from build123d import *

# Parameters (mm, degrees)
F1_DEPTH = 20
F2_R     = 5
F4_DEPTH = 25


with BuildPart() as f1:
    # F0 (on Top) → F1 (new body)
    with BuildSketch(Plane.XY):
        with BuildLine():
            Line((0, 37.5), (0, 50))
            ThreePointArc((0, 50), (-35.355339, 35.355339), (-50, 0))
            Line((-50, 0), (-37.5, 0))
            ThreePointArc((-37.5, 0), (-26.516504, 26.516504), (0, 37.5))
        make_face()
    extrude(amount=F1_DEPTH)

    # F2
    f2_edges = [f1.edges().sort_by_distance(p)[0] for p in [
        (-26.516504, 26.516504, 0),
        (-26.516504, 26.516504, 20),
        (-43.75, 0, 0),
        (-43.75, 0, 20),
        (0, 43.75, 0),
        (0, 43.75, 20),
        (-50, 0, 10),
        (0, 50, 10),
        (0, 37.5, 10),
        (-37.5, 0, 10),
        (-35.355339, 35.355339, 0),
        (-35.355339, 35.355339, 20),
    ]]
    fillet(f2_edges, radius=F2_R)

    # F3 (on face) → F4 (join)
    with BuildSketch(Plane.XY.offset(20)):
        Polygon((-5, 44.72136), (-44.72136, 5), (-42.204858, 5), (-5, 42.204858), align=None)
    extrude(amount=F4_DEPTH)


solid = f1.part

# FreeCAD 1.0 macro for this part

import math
import FreeCAD as App
import Part
import Sketcher
from FreeCAD import Vector

doc = App.newDocument("Part")
params = doc.addObject("Spreadsheet::Sheet", "Params")
for row, (alias, value) in enumerate([
    ("sketch1_radius", "50 mm"),
    ("sketch1_radius2", "37.500001 mm"),
    ("pad1_length", "20 mm"),
    ("fillet_radius", "5 mm"),
    ("pad2_length", "25 mm"),
], start=1):
    params.set(f"A{row}", alias)
    params.set(f"B{row}", "=" + value)
    params.setAlias(f"B{row}", alias)

body = doc.addObject("PartDesign::Body", "Body")

# Sketch on XY plane
sketch1 = body.newObject("Sketcher::SketchObject", "Sketch")
sketch1.AttachmentSupport = (doc.getObject("XY_Plane"), [""])
sketch1.MapMode = "FlatFace"
sketch1.addGeometry([
    Part.LineSegment(Vector(0, 37.5, 0), Vector(0, 50, 0)),
    Part.ArcOfCircle(Part.Circle(Vector(0, 0, 0), Vector(0, 0, 1), 50), math.radians(90), math.radians(180)),
    Part.LineSegment(Vector(-50, 0, 0), Vector(-37.5, 0, 0)),
    Part.ArcOfCircle(Part.Circle(Vector(0.000001, -0.000001, 0), Vector(0, 0, 1), 37.500001), math.radians(90.000002), math.radians(179.999998)),
], False)
sketch1.addConstraint([
    Sketcher.Constraint("Coincident", 0, 2, 1, 1),
    Sketcher.Constraint("Coincident", 1, 2, 2, 1),
    Sketcher.Constraint("Coincident", 2, 2, 3, 2),
    Sketcher.Constraint("Coincident", 3, 1, 0, 1),
    Sketcher.Constraint("Vertical", 0),
    Sketcher.Constraint("Horizontal", 2),
    Sketcher.Constraint("Coincident", 1, 3, -1, 1),
    Sketcher.Constraint("Coincident", 3, 3, -1, 1),
    Sketcher.Constraint("PointOnObject", 0, 2, -2),
    Sketcher.Constraint("PointOnObject", 1, 2, -1),
    Sketcher.Constraint("Radius", 1, 50.0),
    Sketcher.Constraint("Radius", 3, 37.500001),
])
sketch1.setExpression("Constraints[10]", "Params.sketch1_radius")
sketch1.setExpression("Constraints[11]", "Params.sketch1_radius2")
pad1 = body.newObject("PartDesign::Pad", "Pad")
pad1.Profile = sketch1
pad1.setExpression("Length", "Params.pad1_length")
doc.recompute()

fillet = body.newObject("PartDesign::Fillet", "Fillet")
fillet.Base = (pad1, ["Edge1"])
fillet.UseAllEdges = True
fillet.setExpression("Radius", "Params.fillet_radius")

# Sketch on XY plane
sketch2 = body.newObject("Sketcher::SketchObject", "Sketch001")
sketch2.AttachmentSupport = (doc.getObject("XY_Plane"), [""])
sketch2.MapMode = "FlatFace"
sketch2.AttachmentOffset = App.Placement(Vector(0, 0, 20), App.Rotation())
sketch2.addGeometry([
    Part.LineSegment(Vector(-5, 44.72136, 0), Vector(-44.72136, 5, 0)),
    Part.LineSegment(Vector(-44.72136, 5, 0), Vector(-42.204858, 5, 0)),
    Part.LineSegment(Vector(-42.204858, 5, 0), Vector(-5, 42.204858, 0)),
    Part.LineSegment(Vector(-5, 42.204858, 0), Vector(-5, 44.72136, 0)),
], False)
sketch2.addConstraint([
    Sketcher.Constraint("Coincident", 0, 2, 1, 1),
    Sketcher.Constraint("Coincident", 1, 2, 2, 1),
    Sketcher.Constraint("Coincident", 2, 2, 3, 1),
    Sketcher.Constraint("Coincident", 3, 2, 0, 1),
    Sketcher.Constraint("Horizontal", 1),
    Sketcher.Constraint("Vertical", 3),
    Sketcher.Constraint("Parallel", 0, 2),
    Sketcher.Constraint("Equal", 1, 3),
    Sketcher.Constraint("DistanceY", -1, 1, 0, 2, 5.0),
    Sketcher.Constraint("DistanceX", 2, 2, -1, 1, 5.0),
    Sketcher.Constraint("DistanceX", 1, 1, 1, 2, 2.516502),
    Sketcher.Constraint("DistanceX", 0, 2, -1, 1, 44.72136),
])
pad2 = body.newObject("PartDesign::Pad", "Pad001")
pad2.Profile = sketch2
pad2.setExpression("Length", "Params.pad2_length")

doc.recompute()
